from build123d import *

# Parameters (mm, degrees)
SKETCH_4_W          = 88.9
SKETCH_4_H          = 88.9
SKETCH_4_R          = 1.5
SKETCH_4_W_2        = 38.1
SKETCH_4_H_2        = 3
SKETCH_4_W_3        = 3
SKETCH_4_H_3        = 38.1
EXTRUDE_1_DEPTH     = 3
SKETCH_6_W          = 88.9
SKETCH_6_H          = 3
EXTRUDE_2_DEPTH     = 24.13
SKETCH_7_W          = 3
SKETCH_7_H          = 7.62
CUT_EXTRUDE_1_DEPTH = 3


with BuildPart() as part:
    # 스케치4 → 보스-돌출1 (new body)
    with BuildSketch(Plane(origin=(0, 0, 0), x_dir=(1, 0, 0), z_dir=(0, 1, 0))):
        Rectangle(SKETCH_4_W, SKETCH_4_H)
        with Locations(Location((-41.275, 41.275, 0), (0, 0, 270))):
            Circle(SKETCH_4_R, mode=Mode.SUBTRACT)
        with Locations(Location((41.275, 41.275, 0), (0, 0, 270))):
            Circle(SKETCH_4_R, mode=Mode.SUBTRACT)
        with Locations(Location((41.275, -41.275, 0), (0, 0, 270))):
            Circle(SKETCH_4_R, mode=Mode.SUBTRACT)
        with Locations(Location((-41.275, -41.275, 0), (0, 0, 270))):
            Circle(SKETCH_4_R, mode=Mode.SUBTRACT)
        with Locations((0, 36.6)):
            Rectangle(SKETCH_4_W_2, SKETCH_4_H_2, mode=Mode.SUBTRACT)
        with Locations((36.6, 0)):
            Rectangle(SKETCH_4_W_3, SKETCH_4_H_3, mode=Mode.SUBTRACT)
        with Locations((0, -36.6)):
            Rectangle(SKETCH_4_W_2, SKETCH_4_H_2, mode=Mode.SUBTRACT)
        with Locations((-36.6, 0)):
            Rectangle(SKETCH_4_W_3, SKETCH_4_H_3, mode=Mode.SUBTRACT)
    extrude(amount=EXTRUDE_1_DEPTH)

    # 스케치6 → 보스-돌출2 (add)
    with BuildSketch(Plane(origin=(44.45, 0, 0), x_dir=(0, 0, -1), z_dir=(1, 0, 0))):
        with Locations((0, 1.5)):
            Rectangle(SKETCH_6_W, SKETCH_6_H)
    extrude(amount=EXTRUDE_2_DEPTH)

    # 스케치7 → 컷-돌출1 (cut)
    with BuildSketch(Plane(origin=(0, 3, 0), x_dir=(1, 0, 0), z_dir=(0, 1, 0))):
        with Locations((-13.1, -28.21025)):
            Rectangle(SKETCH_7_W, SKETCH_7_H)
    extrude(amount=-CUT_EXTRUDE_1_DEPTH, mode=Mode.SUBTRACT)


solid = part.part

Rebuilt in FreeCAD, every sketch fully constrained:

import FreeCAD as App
import Part
import Sketcher

V = App.Vector
Q = App.Units.Quantity


def add_polygon(sketch, points):
    """Adds a closed chain of lines whose ends are joined by coincident constraints."""
    first, n = sketch.GeometryCount, len(points)
    for a, b in zip(points, points[1:] + points[:1]):
        sketch.addGeometry(Part.LineSegment(App.Vector(*a, 0), App.Vector(*b, 0)), False)
    for i in range(n):
        sketch.addConstraint(Sketcher.Constraint("Coincident", first + i, 2, first + (i + 1) % n, 1))

doc = App.newDocument("Part")
params = doc.addObject("Spreadsheet::Sheet", "Params")
for row, (alias, value) in enumerate([
    ("sketch1_width", "3.5 in"),
    ("sketch1_width2", "1.5 in"),
    ("pad1_length", "3 mm"),
    ("sketch2_height", "3.5 in"),
    ("pad2_length", "0.95 in"),
    ("sketch3_height", "0.3 in"),
    ("pocket1_length", "3 mm"),
], start=1):
    params.set(f"A{row}", alias)
    params.set(f"B{row}", "=" + value)
    params.setAlias(f"B{row}", alias)

body = doc.addObject("PartDesign::Body", "Body")

# Sketch on XZ plane
sketch1 = doc.addObject("Sketcher::SketchObject", "Sketch")
body.addObject(sketch1)
sketch1.AttachmentSupport = (doc.XZ_Plane, [""])
sketch1.MapMode = "FlatFace"
add_polygon(sketch1, [(-44.5, -44.5), (-44.5, 44.5), (44.5, 44.5), (44.5, -44.5)])  # lines 0-3
sketch1.addGeometry(Part.Circle(V(-41.3, 41.3, 0), V(0, 0, 1), 1.5), False)  # 4
add_polygon(sketch1, [(19.1, 38.1), (-19.1, 38.1), (-19.1, 35.1), (19.1, 35.1)])  # lines 5-8
add_polygon(sketch1, [(-35.1, 19.1), (-38.1, 19.1), (-38.1, -19.1), (-35.1, -19.1)])  # lines 9-12
sketch1.addGeometry(Part.Circle(V(41.3, 41.3, 0), V(0, 0, 1), 1.5), False)  # 13
add_polygon(sketch1, [(38.1, 19.1), (35.1, 19.1), (35.1, -19.1), (38.1, -19.1)])  # lines 14-17
sketch1.addGeometry(Part.Circle(V(-41.3, -41.3, 0), V(0, 0, 1), 1.5), False)  # 18
add_polygon(sketch1, [(19.1, -35.1), (-19.1, -35.1), (-19.1, -38.1), (19.1, -38.1)])  # lines 19-22
sketch1.addGeometry(Part.Circle(V(41.3, -41.3, 0), V(0, 0, 1), 1.5), False)  # 23
sketch1.addConstraint(Sketcher.Constraint("Vertical", 0))
sketch1.addConstraint(Sketcher.Constraint("Horizontal", 1))
sketch1.addConstraint(Sketcher.Constraint("Vertical", 2))
sketch1.addConstraint(Sketcher.Constraint("Horizontal", 3))
sketch1.addConstraint(Sketcher.Constraint("Horizontal", 5))
sketch1.addConstraint(Sketcher.Constraint("Vertical", 6))
sketch1.addConstraint(Sketcher.Constraint("Horizontal", 7))
sketch1.addConstraint(Sketcher.Constraint("Vertical", 8))
sketch1.addConstraint(Sketcher.Constraint("Horizontal", 9))
sketch1.addConstraint(Sketcher.Constraint("Vertical", 10))
sketch1.addConstraint(Sketcher.Constraint("Horizontal", 11))
sketch1.addConstraint(Sketcher.Constraint("Vertical", 12))
sketch1.addConstraint(Sketcher.Constraint("Horizontal", 14))
sketch1.addConstraint(Sketcher.Constraint("Vertical", 15))
sketch1.addConstraint(Sketcher.Constraint("Horizontal", 16))
sketch1.addConstraint(Sketcher.Constraint("Vertical", 17))
sketch1.addConstraint(Sketcher.Constraint("Horizontal", 19))
sketch1.addConstraint(Sketcher.Constraint("Vertical", 20))
sketch1.addConstraint(Sketcher.Constraint("Horizontal", 21))
sketch1.addConstraint(Sketcher.Constraint("Vertical", 22))
sketch1.addConstraint(Sketcher.Constraint("Equal", 4, 13))
sketch1.addConstraint(Sketcher.Constraint("Equal", 13, 18))
sketch1.addConstraint(Sketcher.Constraint("Equal", 18, 23))
sketch1.addConstraint(Sketcher.Constraint("Symmetric", 13, 3, 18, 3, -1, 1))
sketch1.addConstraint(Sketcher.Constraint("Symmetric", 4, 3, 23, 3, -1, 1))
sketch1.addConstraint(Sketcher.Constraint("Symmetric", 0, 2, 2, 2, -1, 1))
sketch1.addConstraint(Sketcher.Constraint("Symmetric", 11, 2, 14, 2, -1, 1))
sketch1.addConstraint(Sketcher.Constraint("Symmetric", 9, 2, 16, 2, -1, 1))
sketch1.addConstraint(Sketcher.Constraint("Symmetric", 7, 2, 19, 2, -1, 1))
sketch1.addConstraint(Sketcher.Constraint("Symmetric", 5, 2, 21, 2, -1, 1))
sketch1.addConstraint(Sketcher.Constraint("Symmetric", 4, 3, 13, 3, -2))
sketch1.addConstraint(Sketcher.Constraint("Horizontal", 12, 2, 14, 2))
sketch1.addConstraint(Sketcher.Constraint("Vertical", 6, 2, 19, 2))
sketch1.addConstraint(Sketcher.Constraint("Equal", 3, 0))
sketch1.addConstraint(Sketcher.Constraint("Equal", 16, 6))
sketch1.addConstraint(Sketcher.Constraint("Equal", 21, 10))
sketch1.addConstraint(Sketcher.Constraint("DistanceX", 1, 1, 1, 2, Q("3.5 in")))
sketch1.addConstraint(Sketcher.Constraint("DistanceX", 5, 2, 5, 1, Q("1.5 in")))
sketch1.addConstraint(Sketcher.Constraint("DistanceY", -1, 1, 5, 2, Q("1.5 in")))
sketch1.addConstraint(Sketcher.Constraint("DistanceX", 9, 2, -1, 1, Q("1.5 in")))
sketch1.addConstraint(Sketcher.Constraint("Diameter", 4, 3.0))
sketch1.addConstraint(Sketcher.Constraint("DistanceX", 4, 3, 13, 3, Q("3.25 in")))
sketch1.addConstraint(Sketcher.Constraint("DistanceY", 18, 3, 4, 3, Q("3.25 in")))
sketch1.addConstraint(Sketcher.Constraint("DistanceX", 9, 2, 9, 1, 3.0))
sketch1.setExpression("Constraints[56]", "Params.sketch1_width")
sketch1.setExpression("Constraints[57]", "Params.sketch1_width2")
pad1 = doc.addObject("PartDesign::Pad", "Pad")
body.addObject(pad1)
pad1.Profile = sketch1
pad1.setExpression("Length", "Params.pad1_length")
pad1.Reversed = True

# Sketch on YZ plane
sketch2 = doc.addObject("Sketcher::SketchObject", "Sketch001")
body.addObject(sketch2)
sketch2.AttachmentSupport = (doc.YZ_Plane, [""])
sketch2.MapMode = "FlatFace"
sketch2.AttachmentOffset = App.Placement(V(0, 0, 1.75 * 25.4), App.Rotation())
add_polygon(sketch2, [(3, 44.5), (0, 44.5), (0, -44.5), (3, -44.5)])  # lines 0-3
sketch2.addConstraint(Sketcher.Constraint("Horizontal", 0))
sketch2.addConstraint(Sketcher.Constraint("Vertical", 1))
sketch2.addConstraint(Sketcher.Constraint("Horizontal", 2))
sketch2.addConstraint(Sketcher.Constraint("Vertical", 3))
sketch2.addConstraint(Sketcher.Constraint("Symmetric", 0, 2, 1, 2, -1, 1))
sketch2.addConstraint(Sketcher.Constraint("DistanceY", 1, 2, 1, 1, Q("3.5 in")))
sketch2.addConstraint(Sketcher.Constraint("DistanceX", 0, 2, 0, 1, 3.0))
sketch2.setExpression("Constraints[9]", "Params.sketch2_height")
pad2 = doc.addObject("PartDesign::Pad", "Pad001")
body.addObject(pad2)
pad2.Profile = sketch2
pad2.setExpression("Length", "Params.pad2_length")

# Sketch on XZ plane
sketch3 = doc.addObject("Sketcher::SketchObject", "Sketch002")
body.addObject(sketch3)
sketch3.AttachmentSupport = (doc.XZ_Plane, [""])
sketch3.MapMode = "FlatFace"
sketch3.AttachmentOffset = App.Placement(V(0, 0, -3), App.Rotation())
add_polygon(sketch3, [(-14.6, 24.4), (-14.6, 32), (-11.6, 32), (-11.6, 24.4)])  # lines 0-3
sketch3.addConstraint(Sketcher.Constraint("Vertical", 0))
sketch3.addConstraint(Sketcher.Constraint("Horizontal", 1))
sketch3.addConstraint(Sketcher.Constraint("Vertical", 2))
sketch3.addConstraint(Sketcher.Constraint("Horizontal", 3))
sketch3.addConstraint(Sketcher.Constraint("DistanceY", 0, 1, 0, 2, Q("0.3 in")))
sketch3.addConstraint(Sketcher.Constraint("DistanceX", 1, 1, 1, 2, 3.0))
sketch3.addConstraint(Sketcher.Constraint("DistanceX", 0, 2, -1, 1, 14.6))
sketch3.addConstraint(Sketcher.Constraint("DistanceY", -1, 1, 0, 2, 32.02025))
sketch3.setExpression("Constraints[8]", "Params.sketch3_height")
pocket1 = doc.addObject("PartDesign::Pocket", "Pocket")
body.addObject(pocket1)
pocket1.Profile = sketch3
pocket1.setExpression("Length", "Params.pocket1_length")
pocket1.Reversed = True

doc.recompute()
